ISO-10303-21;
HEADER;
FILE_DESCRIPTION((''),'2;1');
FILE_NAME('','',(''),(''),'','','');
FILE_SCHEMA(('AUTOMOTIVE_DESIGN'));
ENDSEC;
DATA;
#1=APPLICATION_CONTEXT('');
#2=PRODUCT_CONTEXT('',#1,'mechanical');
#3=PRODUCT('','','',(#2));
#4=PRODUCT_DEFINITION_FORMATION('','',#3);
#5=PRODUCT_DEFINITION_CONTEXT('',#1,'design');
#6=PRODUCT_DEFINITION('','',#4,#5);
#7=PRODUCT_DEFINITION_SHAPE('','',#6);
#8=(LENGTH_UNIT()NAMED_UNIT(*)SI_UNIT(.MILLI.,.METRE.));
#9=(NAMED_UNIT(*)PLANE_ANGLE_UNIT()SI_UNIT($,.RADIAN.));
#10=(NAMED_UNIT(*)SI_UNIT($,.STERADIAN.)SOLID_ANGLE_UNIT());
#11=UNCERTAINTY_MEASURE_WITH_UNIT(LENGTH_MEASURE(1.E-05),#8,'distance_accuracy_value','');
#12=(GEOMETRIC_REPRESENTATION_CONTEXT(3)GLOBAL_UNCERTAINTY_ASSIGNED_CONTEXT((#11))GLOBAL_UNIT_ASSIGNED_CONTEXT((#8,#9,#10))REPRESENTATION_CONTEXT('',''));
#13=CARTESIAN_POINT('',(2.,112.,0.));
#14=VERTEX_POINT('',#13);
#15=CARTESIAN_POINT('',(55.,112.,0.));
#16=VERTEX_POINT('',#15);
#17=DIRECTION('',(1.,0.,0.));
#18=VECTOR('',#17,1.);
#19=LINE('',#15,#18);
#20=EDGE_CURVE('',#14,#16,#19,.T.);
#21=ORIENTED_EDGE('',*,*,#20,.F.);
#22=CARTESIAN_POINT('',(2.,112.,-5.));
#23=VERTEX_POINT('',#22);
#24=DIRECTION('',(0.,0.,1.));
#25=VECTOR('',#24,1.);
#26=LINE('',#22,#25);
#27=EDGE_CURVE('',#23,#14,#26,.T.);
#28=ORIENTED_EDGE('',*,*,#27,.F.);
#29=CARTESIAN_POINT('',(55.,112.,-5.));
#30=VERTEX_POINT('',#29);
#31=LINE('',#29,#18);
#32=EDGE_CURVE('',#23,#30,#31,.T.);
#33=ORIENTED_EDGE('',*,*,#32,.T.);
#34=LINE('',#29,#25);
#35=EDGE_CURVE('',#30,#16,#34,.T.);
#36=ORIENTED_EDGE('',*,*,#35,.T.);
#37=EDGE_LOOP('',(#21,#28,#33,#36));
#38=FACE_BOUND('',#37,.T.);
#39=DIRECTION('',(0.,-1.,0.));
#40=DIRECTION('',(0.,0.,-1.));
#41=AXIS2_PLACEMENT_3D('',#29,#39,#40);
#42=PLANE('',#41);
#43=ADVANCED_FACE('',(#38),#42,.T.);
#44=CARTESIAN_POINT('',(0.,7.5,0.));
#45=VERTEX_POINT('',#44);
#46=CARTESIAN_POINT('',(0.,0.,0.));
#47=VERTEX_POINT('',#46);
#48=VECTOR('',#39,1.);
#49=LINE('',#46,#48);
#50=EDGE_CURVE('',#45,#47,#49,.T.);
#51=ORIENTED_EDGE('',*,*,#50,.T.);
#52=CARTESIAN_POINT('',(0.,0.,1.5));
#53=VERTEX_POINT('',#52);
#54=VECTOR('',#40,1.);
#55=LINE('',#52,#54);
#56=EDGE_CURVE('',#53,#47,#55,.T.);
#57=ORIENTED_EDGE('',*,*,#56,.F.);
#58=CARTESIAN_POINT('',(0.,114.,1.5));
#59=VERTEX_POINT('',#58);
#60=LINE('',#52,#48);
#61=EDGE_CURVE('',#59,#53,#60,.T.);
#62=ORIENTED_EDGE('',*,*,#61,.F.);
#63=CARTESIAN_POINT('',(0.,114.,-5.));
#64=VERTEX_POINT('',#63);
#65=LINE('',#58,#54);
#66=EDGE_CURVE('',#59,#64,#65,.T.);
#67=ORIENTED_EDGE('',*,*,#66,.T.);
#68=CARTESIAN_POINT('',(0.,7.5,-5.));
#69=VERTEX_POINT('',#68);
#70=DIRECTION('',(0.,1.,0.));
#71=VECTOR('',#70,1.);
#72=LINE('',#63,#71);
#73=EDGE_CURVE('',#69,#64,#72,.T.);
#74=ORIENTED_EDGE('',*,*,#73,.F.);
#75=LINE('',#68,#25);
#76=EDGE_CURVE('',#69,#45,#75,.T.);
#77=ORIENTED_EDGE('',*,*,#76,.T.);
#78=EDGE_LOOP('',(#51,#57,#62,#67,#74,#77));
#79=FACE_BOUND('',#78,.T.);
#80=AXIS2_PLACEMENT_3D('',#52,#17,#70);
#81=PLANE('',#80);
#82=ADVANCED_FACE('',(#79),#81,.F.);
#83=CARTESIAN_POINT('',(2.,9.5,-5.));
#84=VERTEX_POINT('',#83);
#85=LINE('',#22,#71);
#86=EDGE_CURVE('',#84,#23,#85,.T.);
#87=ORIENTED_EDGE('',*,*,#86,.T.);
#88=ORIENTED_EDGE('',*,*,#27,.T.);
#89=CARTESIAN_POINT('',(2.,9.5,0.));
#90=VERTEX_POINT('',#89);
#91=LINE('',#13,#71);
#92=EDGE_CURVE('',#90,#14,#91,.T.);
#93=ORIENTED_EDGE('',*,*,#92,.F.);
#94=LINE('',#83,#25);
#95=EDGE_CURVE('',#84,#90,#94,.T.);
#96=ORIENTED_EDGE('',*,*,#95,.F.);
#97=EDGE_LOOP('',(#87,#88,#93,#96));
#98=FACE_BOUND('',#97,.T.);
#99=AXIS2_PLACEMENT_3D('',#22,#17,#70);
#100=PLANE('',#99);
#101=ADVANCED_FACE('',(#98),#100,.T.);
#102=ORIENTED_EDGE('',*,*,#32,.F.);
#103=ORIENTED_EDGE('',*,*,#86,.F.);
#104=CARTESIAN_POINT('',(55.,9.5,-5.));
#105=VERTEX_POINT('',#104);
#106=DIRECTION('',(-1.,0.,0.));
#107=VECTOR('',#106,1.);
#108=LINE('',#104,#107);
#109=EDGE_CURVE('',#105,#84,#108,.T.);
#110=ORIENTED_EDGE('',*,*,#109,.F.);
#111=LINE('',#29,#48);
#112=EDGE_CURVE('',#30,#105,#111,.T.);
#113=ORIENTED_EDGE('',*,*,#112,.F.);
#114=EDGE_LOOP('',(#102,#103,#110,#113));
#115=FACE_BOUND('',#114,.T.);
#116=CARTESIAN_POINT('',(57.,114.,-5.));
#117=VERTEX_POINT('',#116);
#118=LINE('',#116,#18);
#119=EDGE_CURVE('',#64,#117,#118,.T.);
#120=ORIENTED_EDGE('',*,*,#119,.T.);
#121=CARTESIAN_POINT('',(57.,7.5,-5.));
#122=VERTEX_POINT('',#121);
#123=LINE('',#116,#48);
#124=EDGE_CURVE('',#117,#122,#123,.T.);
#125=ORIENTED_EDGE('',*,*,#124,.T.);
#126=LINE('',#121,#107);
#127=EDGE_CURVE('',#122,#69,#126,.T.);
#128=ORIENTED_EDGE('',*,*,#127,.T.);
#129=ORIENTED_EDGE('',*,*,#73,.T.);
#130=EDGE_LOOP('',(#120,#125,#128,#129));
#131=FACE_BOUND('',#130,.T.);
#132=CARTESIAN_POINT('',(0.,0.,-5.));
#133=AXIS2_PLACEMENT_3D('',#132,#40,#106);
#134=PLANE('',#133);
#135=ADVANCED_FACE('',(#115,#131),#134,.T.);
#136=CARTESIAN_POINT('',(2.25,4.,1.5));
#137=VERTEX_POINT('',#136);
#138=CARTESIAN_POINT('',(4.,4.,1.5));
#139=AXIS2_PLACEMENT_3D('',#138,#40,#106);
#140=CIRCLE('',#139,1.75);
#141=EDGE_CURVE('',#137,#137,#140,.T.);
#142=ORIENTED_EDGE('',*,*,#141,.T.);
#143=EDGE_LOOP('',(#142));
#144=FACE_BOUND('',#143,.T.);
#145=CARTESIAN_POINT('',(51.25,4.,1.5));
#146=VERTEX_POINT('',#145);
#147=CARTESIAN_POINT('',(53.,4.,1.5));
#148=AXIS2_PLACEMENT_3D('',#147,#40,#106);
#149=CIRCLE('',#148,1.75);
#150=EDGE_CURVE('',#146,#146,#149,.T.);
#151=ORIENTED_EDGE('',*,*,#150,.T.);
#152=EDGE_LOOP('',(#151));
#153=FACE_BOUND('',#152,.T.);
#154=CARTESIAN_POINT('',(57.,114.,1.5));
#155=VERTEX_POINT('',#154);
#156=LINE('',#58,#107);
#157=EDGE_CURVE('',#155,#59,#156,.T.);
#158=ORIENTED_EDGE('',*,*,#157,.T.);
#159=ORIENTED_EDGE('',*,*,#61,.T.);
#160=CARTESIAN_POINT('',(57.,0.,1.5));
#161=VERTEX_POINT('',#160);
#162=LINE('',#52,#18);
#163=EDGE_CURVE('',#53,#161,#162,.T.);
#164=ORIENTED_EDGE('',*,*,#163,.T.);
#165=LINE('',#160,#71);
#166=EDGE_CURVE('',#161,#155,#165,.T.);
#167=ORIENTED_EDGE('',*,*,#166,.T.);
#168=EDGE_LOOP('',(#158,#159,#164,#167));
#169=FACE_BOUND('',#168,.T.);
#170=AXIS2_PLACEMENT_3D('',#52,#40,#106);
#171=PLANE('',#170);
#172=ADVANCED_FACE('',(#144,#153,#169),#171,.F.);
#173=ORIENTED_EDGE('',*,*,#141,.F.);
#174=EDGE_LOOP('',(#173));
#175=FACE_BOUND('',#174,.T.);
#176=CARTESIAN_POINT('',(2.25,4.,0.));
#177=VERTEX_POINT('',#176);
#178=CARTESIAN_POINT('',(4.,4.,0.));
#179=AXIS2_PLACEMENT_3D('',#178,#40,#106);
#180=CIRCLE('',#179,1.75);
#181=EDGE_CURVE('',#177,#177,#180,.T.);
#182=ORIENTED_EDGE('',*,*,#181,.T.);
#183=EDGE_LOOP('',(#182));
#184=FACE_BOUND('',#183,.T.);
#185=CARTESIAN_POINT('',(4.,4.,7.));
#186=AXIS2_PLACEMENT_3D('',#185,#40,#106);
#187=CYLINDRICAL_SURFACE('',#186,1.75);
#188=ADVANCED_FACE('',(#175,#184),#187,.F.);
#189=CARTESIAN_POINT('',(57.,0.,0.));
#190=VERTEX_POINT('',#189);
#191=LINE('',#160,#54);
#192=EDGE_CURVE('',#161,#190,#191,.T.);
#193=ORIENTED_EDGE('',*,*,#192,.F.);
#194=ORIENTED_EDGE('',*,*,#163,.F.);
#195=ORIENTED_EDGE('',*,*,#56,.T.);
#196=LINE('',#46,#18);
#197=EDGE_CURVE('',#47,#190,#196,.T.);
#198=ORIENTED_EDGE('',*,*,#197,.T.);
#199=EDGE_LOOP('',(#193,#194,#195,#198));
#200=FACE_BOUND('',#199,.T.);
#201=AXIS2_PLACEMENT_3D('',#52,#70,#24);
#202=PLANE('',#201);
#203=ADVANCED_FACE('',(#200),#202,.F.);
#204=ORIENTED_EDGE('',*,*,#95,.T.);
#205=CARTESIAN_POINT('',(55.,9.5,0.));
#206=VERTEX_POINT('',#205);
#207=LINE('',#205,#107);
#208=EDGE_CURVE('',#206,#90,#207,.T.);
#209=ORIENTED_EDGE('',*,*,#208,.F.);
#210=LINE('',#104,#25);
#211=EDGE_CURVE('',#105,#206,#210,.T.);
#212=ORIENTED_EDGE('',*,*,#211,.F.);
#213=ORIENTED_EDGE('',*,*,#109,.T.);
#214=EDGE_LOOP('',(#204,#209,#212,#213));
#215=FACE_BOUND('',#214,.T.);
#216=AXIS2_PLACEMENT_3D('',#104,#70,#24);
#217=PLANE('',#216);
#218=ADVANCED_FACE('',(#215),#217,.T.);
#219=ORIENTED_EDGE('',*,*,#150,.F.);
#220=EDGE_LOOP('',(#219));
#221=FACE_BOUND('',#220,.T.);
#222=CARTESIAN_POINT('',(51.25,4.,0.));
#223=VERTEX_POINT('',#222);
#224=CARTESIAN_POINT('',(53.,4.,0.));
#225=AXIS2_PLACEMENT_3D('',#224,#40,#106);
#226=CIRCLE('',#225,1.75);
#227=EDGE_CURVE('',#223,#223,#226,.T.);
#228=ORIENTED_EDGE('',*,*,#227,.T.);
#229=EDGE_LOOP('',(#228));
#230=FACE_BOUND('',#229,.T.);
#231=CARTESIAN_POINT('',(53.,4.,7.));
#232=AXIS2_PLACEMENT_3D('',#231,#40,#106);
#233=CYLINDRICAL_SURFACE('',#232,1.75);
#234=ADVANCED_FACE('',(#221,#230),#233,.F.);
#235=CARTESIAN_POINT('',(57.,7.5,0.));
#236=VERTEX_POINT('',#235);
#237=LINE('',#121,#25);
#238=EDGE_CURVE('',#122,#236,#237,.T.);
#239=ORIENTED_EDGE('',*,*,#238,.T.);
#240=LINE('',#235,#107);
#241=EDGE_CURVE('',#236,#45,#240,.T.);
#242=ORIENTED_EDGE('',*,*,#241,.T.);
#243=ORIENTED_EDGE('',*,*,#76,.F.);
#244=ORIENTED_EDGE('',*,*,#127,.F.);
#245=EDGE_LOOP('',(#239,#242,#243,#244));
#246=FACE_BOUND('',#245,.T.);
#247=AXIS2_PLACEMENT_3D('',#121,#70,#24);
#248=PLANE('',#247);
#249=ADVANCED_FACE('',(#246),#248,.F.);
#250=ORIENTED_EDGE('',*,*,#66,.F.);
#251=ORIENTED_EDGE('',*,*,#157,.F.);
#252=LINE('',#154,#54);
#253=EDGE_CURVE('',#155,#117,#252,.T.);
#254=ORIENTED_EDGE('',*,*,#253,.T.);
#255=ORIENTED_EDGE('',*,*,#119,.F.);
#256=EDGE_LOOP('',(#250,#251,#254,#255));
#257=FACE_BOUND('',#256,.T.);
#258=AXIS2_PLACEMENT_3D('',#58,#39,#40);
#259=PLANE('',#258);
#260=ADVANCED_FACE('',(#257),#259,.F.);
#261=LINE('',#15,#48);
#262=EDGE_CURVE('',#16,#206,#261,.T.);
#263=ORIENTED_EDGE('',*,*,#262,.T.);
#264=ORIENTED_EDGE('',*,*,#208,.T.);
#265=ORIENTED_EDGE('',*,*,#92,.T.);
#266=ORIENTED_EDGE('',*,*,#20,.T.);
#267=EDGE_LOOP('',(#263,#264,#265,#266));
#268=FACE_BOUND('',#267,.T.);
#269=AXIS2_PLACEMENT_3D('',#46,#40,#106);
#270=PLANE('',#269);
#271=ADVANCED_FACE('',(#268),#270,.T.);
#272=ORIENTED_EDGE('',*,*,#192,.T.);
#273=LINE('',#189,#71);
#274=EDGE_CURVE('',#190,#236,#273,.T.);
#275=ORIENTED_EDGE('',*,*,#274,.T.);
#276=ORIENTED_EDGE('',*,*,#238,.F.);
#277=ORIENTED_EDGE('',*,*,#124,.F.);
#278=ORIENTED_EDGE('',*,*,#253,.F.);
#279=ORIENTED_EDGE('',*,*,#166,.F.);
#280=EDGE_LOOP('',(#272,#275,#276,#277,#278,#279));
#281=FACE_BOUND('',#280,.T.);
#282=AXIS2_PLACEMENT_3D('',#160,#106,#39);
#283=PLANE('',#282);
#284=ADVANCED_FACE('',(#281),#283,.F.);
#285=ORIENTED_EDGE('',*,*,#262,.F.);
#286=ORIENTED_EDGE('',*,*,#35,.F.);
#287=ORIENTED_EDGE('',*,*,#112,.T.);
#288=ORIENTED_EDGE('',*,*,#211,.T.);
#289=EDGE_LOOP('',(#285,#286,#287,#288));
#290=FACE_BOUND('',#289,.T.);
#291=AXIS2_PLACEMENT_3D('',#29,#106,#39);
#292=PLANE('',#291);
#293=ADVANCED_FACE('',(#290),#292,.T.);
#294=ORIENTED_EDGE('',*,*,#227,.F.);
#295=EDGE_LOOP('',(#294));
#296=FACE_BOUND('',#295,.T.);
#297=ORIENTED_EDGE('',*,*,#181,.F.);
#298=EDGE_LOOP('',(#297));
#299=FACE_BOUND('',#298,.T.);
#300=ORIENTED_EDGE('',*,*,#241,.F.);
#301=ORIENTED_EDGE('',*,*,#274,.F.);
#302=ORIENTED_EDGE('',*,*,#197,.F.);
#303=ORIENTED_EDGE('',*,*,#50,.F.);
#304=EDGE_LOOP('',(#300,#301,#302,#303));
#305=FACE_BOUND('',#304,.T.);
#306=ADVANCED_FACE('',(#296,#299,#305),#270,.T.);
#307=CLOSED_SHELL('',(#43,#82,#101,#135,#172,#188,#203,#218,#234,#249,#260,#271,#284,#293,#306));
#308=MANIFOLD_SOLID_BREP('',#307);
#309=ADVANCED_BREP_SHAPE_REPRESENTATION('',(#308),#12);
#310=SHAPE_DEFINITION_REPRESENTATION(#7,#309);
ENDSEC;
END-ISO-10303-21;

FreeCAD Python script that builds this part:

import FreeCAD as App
import Part
import Sketcher

V = App.Vector
Q = App.Units.Quantity

doc = App.newDocument("Part")
body = doc.addObject("PartDesign::Body", "Body")

sketch1 = body.newObject("Sketcher::SketchObject", "Sketch")
sketch1.AttachmentSupport = (doc.getObject("XY_Plane"), [""])
sketch1.MapMode = "FlatFace"
sketch1.addGeometry([
    Part.LineSegment(V(0, 114, 0), V(0, 0, 0)),
    Part.LineSegment(V(0, 0, 0), V(57, 0, 0)),
    Part.LineSegment(V(57, 0, 0), V(57, 114, 0)),
    Part.LineSegment(V(57, 114, 0), V(0, 114, 0)),
], False)
sketch1.addConstraint([
    Sketcher.Constraint("Coincident", 0, 2, 1, 1),
    Sketcher.Constraint("Coincident", 1, 2, 2, 1),
    Sketcher.Constraint("Coincident", 2, 2, 3, 1),
    Sketcher.Constraint("Coincident", 3, 2, 0, 1),
    Sketcher.Constraint("Vertical", 0),
    Sketcher.Constraint("Horizontal", 1),
    Sketcher.Constraint("Vertical", 2),
    Sketcher.Constraint("Horizontal", 3),
    Sketcher.Constraint("Coincident", 0, 2, -1, 1),
    Sketcher.Constraint("DistanceX", 1, 1, 1, 2, Q("57 mm")),
    Sketcher.Constraint("DistanceY", 0, 2, 0, 1, Q("114 mm")),
])
pad1 = body.newObject("PartDesign::Pad", "Pad")
pad1.Profile = sketch1
pad1.Length = 1.5

sketch2 = body.newObject("Sketcher::SketchObject", "Sketch001")
sketch2.AttachmentSupport = (doc.getObject("XY_Plane"), [""])
sketch2.MapMode = "FlatFace"
sketch2.addGeometry([
    Part.Circle(V(4, 4, 0), V(0, 0, 1), 1.8),
    Part.Circle(V(53, 4, 0), V(0, 0, 1), 1.8),
    Part.LineSegment(V(57, 114, 0), V(57, 7.5, 0)),
    Part.LineSegment(V(57, 7.5, 0), V(0, 7.5, 0)),
    Part.LineSegment(V(0, 7.5, 0), V(0, 114, 0)),
    Part.LineSegment(V(0, 114, 0), V(57, 114, 0)),
    Part.LineSegment(V(2, 9.5, 0), V(55, 9.5, 0)),
    Part.LineSegment(V(55, 9.5, 0), V(55, 112, 0)),
    Part.LineSegment(V(55, 112, 0), V(2, 112, 0)),
    Part.LineSegment(V(2, 112, 0), V(2, 9.5, 0)),
], False)
sketch2.addConstraint([
    Sketcher.Constraint("Coincident", 2, 2, 3, 1),
    Sketcher.Constraint("Coincident", 3, 2, 4, 1),
    Sketcher.Constraint("Coincident", 4, 2, 5, 1),
    Sketcher.Constraint("Coincident", 5, 2, 2, 1),
    Sketcher.Constraint("Coincident", 6, 2, 7, 1),
    Sketcher.Constraint("Coincident", 7, 2, 8, 1),
    Sketcher.Constraint("Coincident", 8, 2, 9, 1),
    Sketcher.Constraint("Coincident", 9, 2, 6, 1),
    Sketcher.Constraint("Vertical", 2),
    Sketcher.Constraint("Horizontal", 3),
    Sketcher.Constraint("Vertical", 4),
    Sketcher.Constraint("Horizontal", 5),
    Sketcher.Constraint("Horizontal", 6),
    Sketcher.Constraint("Vertical", 7),
    Sketcher.Constraint("Horizontal", 8),
    Sketcher.Constraint("Vertical", 9),
    Sketcher.Constraint("Equal", 0, 1),
    Sketcher.Constraint("PointOnObject", 3, 2, -2),
    Sketcher.Constraint("Horizontal", 0, 3, 1, 3),
    Sketcher.Constraint("Diameter", 0, Q("3.5 mm")),
    Sketcher.Constraint("DistanceX", 3, 2, 3, 1, Q("57 mm")),
    Sketcher.Constraint("DistanceX", 6, 1, 6, 2, Q("53 mm")),
    Sketcher.Constraint("DistanceY", 2, 2, 2, 1, Q("106.5 mm")),
    Sketcher.Constraint("DistanceY", 7, 1, 7, 2, Q("102.5 mm")),
    Sketcher.Constraint("DistanceX", -1, 1, 0, 3, Q("4 mm")),
    Sketcher.Constraint("DistanceY", -1, 1, 0, 3, Q("4 mm")),
    Sketcher.Constraint("DistanceX", -1, 1, 1, 3, Q("53 mm")),
    Sketcher.Constraint("DistanceY", -1, 1, 4, 2, Q("114 mm")),
    Sketcher.Constraint("DistanceX", -1, 1, 6, 2, Q("55 mm")),
    Sketcher.Constraint("DistanceY", -1, 1, 7, 2, Q("112 mm")),
])
pad2 = body.newObject("PartDesign::Pad", "Pad001")
pad2.Profile = sketch2
pad2.Length = 5
pad2.Reversed = True

sketch3 = body.newObject("Sketcher::SketchObject", "Sketch002")
sketch3.AttachmentSupport = (doc.getObject("XY_Plane"), [""])
sketch3.MapMode = "FlatFace"
sketch3.AttachmentOffset = App.Placement(V(0, 0, 7), App.Rotation())
sketch3.addGeometry([
    Part.Circle(V(4, 4, 0), V(0, 0, 1), 1.8),
    Part.Circle(V(53, 4, 0), V(0, 0, 1), 1.8),
], False)
sketch3.addConstraint([
    Sketcher.Constraint("Equal", 0, 1),
    Sketcher.Constraint("Horizontal", 0, 3, 1, 3),
    Sketcher.Constraint("Diameter", 0, Q("3.5 mm")),
    Sketcher.Constraint("DistanceX", -1, 1, 0, 3, Q("4 mm")),
    Sketcher.Constraint("DistanceY", -1, 1, 0, 3, Q("4 mm")),
    Sketcher.Constraint("DistanceX", -1, 1, 1, 3, Q("53 mm")),
])
pocket1 = body.newObject("PartDesign::Pocket", "Pocket")
pocket1.Profile = sketch3
pocket1.Length = 12

doc.recompute()
